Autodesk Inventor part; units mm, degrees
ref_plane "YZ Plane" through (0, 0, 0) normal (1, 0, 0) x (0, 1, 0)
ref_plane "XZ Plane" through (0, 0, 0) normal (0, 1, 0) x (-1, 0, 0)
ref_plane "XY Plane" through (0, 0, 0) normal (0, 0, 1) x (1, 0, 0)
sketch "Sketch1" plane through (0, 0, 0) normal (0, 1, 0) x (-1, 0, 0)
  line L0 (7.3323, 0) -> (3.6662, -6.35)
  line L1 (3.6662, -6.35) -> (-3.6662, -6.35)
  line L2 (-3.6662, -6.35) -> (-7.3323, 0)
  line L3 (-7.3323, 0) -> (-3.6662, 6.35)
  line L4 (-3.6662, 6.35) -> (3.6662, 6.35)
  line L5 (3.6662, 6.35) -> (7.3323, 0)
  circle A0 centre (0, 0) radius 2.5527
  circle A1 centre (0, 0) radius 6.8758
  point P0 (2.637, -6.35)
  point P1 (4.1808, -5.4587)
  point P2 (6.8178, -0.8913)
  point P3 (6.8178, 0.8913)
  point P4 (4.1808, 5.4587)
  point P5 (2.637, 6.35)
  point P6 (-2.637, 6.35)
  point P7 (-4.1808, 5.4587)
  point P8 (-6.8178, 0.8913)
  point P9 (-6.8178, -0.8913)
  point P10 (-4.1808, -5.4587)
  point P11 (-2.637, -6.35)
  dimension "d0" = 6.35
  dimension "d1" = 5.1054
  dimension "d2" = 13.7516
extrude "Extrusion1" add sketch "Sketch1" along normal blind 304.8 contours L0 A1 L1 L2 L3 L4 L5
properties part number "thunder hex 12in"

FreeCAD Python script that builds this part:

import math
import FreeCAD as App
import Part
import Sketcher
from FreeCAD import Vector
Q = App.Units.Quantity

doc = App.newDocument("Part")
body = doc.addObject("PartDesign::Body", "Body")

sketch1 = doc.addObject("Sketcher::SketchObject", "Sketch")
body.addObject(sketch1)
sketch1.AttachmentSupport = (doc.XZ_Plane, [""])
sketch1.MapMode = "FlatFace"
sketch1.addGeometry([
    Part.LineSegment(Vector(-4.2, -5.5, 0), Vector(-6.8, -0.9, 0)),
    Part.ArcOfCircle(Part.Circle(Vector(0, 0, 0), Vector(0, 0, 1), 6.9), math.radians(172.55), math.radians(187.45)),
    Part.LineSegment(Vector(-6.8, 0.9, 0), Vector(-4.2, 5.5, 0)),
    Part.ArcOfCircle(Part.Circle(Vector(0, 0, 0), Vector(0, 0, 1), 6.9), math.radians(112.55), math.radians(127.45)),
    Part.LineSegment(Vector(-2.6, 6.3, 0), Vector(2.6, 6.3, 0)),
    Part.ArcOfCircle(Part.Circle(Vector(0, 0, 0), Vector(0, 0, 1), 6.9), math.radians(52.55), math.radians(67.45)),
    Part.LineSegment(Vector(4.2, 5.5, 0), Vector(6.8, 0.9, 0)),
    Part.ArcOfCircle(Part.Circle(Vector(0, 0, 0), Vector(0, 0, 1), 6.9), math.radians(-7.45), math.radians(7.45)),
    Part.LineSegment(Vector(6.8, -0.9, 0), Vector(4.2, -5.5, 0)),
    Part.ArcOfCircle(Part.Circle(Vector(0, 0, 0), Vector(0, 0, 1), 6.9), math.radians(-67.45), math.radians(-52.55)),
    Part.LineSegment(Vector(2.6, -6.3, 0), Vector(-2.6, -6.3, 0)),
    Part.ArcOfCircle(Part.Circle(Vector(0, 0, 0), Vector(0, 0, 1), 6.9), math.radians(-127.45), math.radians(-112.55)),
    Part.Circle(Vector(0, 0, 0), Vector(0, 0, 1), 2.6),
], False)
sketch1.addConstraint([
    Sketcher.Constraint("Coincident", 0, 2, 1, 2),
    Sketcher.Constraint("Coincident", 1, 1, 2, 1),
    Sketcher.Constraint("Coincident", 2, 2, 3, 2),
    Sketcher.Constraint("Coincident", 3, 1, 4, 1),
    Sketcher.Constraint("Coincident", 4, 2, 5, 2),
    Sketcher.Constraint("Coincident", 5, 1, 6, 1),
    Sketcher.Constraint("Coincident", 6, 2, 7, 2),
    Sketcher.Constraint("Coincident", 7, 1, 8, 1),
    Sketcher.Constraint("Coincident", 8, 2, 9, 2),
    Sketcher.Constraint("Coincident", 9, 1, 10, 1),
    Sketcher.Constraint("Coincident", 10, 2, 11, 2),
    Sketcher.Constraint("Coincident", 11, 1, 0, 1),
    Sketcher.Constraint("Horizontal", 4),
    Sketcher.Constraint("Horizontal", 10),
    Sketcher.Constraint("Coincident", 1, 3, -1, 1),
    Sketcher.Constraint("Coincident", 3, 3, -1, 1),
    Sketcher.Constraint("Coincident", 5, 3, -1, 1),
    Sketcher.Constraint("Coincident", 7, 3, -1, 1),
    Sketcher.Constraint("Coincident", 9, 3, -1, 1),
    Sketcher.Constraint("Coincident", 11, 3, -1, 1),
    Sketcher.Constraint("Coincident", 12, 3, -1, 1),
    Sketcher.Constraint("Equal", 1, 3),
    Sketcher.Constraint("Equal", 3, 5),
    Sketcher.Constraint("Equal", 5, 7),
    Sketcher.Constraint("Equal", 7, 9),
    Sketcher.Constraint("Equal", 9, 11),
    Sketcher.Constraint("Parallel", 0, 6),
    Sketcher.Constraint("Parallel", 2, 8),
    Sketcher.Constraint("Horizontal", 2, 2, 5, 1),
    Sketcher.Constraint("Horizontal", 1, 1, 6, 2),
    Sketcher.Constraint("Horizontal", 0, 2, 7, 1),
    Sketcher.Constraint("Vertical", 0, 2, 1, 1),
    Sketcher.Constraint("Vertical", 4, 2, 9, 1),
    Sketcher.Constraint("Diameter", 12, Q("0.201 in")),
    Sketcher.Constraint("Radius", 1, Q("0.2707 in")),
    Sketcher.Constraint("DistanceY", -1, 1, 3, 1, Q("0.25 in")),
    Sketcher.Constraint("DistanceY", 0, 2, 2, 2, Q("0.25 in")),
    Sketcher.Constraint("Angle", 0, Q("119.9995 deg")),
])
pad1 = doc.addObject("PartDesign::Pad", "Pad")
body.addObject(pad1)
pad1.Profile = sketch1
pad1.Length = Q("12 in")
pad1.Reversed = True

doc.recompute()
